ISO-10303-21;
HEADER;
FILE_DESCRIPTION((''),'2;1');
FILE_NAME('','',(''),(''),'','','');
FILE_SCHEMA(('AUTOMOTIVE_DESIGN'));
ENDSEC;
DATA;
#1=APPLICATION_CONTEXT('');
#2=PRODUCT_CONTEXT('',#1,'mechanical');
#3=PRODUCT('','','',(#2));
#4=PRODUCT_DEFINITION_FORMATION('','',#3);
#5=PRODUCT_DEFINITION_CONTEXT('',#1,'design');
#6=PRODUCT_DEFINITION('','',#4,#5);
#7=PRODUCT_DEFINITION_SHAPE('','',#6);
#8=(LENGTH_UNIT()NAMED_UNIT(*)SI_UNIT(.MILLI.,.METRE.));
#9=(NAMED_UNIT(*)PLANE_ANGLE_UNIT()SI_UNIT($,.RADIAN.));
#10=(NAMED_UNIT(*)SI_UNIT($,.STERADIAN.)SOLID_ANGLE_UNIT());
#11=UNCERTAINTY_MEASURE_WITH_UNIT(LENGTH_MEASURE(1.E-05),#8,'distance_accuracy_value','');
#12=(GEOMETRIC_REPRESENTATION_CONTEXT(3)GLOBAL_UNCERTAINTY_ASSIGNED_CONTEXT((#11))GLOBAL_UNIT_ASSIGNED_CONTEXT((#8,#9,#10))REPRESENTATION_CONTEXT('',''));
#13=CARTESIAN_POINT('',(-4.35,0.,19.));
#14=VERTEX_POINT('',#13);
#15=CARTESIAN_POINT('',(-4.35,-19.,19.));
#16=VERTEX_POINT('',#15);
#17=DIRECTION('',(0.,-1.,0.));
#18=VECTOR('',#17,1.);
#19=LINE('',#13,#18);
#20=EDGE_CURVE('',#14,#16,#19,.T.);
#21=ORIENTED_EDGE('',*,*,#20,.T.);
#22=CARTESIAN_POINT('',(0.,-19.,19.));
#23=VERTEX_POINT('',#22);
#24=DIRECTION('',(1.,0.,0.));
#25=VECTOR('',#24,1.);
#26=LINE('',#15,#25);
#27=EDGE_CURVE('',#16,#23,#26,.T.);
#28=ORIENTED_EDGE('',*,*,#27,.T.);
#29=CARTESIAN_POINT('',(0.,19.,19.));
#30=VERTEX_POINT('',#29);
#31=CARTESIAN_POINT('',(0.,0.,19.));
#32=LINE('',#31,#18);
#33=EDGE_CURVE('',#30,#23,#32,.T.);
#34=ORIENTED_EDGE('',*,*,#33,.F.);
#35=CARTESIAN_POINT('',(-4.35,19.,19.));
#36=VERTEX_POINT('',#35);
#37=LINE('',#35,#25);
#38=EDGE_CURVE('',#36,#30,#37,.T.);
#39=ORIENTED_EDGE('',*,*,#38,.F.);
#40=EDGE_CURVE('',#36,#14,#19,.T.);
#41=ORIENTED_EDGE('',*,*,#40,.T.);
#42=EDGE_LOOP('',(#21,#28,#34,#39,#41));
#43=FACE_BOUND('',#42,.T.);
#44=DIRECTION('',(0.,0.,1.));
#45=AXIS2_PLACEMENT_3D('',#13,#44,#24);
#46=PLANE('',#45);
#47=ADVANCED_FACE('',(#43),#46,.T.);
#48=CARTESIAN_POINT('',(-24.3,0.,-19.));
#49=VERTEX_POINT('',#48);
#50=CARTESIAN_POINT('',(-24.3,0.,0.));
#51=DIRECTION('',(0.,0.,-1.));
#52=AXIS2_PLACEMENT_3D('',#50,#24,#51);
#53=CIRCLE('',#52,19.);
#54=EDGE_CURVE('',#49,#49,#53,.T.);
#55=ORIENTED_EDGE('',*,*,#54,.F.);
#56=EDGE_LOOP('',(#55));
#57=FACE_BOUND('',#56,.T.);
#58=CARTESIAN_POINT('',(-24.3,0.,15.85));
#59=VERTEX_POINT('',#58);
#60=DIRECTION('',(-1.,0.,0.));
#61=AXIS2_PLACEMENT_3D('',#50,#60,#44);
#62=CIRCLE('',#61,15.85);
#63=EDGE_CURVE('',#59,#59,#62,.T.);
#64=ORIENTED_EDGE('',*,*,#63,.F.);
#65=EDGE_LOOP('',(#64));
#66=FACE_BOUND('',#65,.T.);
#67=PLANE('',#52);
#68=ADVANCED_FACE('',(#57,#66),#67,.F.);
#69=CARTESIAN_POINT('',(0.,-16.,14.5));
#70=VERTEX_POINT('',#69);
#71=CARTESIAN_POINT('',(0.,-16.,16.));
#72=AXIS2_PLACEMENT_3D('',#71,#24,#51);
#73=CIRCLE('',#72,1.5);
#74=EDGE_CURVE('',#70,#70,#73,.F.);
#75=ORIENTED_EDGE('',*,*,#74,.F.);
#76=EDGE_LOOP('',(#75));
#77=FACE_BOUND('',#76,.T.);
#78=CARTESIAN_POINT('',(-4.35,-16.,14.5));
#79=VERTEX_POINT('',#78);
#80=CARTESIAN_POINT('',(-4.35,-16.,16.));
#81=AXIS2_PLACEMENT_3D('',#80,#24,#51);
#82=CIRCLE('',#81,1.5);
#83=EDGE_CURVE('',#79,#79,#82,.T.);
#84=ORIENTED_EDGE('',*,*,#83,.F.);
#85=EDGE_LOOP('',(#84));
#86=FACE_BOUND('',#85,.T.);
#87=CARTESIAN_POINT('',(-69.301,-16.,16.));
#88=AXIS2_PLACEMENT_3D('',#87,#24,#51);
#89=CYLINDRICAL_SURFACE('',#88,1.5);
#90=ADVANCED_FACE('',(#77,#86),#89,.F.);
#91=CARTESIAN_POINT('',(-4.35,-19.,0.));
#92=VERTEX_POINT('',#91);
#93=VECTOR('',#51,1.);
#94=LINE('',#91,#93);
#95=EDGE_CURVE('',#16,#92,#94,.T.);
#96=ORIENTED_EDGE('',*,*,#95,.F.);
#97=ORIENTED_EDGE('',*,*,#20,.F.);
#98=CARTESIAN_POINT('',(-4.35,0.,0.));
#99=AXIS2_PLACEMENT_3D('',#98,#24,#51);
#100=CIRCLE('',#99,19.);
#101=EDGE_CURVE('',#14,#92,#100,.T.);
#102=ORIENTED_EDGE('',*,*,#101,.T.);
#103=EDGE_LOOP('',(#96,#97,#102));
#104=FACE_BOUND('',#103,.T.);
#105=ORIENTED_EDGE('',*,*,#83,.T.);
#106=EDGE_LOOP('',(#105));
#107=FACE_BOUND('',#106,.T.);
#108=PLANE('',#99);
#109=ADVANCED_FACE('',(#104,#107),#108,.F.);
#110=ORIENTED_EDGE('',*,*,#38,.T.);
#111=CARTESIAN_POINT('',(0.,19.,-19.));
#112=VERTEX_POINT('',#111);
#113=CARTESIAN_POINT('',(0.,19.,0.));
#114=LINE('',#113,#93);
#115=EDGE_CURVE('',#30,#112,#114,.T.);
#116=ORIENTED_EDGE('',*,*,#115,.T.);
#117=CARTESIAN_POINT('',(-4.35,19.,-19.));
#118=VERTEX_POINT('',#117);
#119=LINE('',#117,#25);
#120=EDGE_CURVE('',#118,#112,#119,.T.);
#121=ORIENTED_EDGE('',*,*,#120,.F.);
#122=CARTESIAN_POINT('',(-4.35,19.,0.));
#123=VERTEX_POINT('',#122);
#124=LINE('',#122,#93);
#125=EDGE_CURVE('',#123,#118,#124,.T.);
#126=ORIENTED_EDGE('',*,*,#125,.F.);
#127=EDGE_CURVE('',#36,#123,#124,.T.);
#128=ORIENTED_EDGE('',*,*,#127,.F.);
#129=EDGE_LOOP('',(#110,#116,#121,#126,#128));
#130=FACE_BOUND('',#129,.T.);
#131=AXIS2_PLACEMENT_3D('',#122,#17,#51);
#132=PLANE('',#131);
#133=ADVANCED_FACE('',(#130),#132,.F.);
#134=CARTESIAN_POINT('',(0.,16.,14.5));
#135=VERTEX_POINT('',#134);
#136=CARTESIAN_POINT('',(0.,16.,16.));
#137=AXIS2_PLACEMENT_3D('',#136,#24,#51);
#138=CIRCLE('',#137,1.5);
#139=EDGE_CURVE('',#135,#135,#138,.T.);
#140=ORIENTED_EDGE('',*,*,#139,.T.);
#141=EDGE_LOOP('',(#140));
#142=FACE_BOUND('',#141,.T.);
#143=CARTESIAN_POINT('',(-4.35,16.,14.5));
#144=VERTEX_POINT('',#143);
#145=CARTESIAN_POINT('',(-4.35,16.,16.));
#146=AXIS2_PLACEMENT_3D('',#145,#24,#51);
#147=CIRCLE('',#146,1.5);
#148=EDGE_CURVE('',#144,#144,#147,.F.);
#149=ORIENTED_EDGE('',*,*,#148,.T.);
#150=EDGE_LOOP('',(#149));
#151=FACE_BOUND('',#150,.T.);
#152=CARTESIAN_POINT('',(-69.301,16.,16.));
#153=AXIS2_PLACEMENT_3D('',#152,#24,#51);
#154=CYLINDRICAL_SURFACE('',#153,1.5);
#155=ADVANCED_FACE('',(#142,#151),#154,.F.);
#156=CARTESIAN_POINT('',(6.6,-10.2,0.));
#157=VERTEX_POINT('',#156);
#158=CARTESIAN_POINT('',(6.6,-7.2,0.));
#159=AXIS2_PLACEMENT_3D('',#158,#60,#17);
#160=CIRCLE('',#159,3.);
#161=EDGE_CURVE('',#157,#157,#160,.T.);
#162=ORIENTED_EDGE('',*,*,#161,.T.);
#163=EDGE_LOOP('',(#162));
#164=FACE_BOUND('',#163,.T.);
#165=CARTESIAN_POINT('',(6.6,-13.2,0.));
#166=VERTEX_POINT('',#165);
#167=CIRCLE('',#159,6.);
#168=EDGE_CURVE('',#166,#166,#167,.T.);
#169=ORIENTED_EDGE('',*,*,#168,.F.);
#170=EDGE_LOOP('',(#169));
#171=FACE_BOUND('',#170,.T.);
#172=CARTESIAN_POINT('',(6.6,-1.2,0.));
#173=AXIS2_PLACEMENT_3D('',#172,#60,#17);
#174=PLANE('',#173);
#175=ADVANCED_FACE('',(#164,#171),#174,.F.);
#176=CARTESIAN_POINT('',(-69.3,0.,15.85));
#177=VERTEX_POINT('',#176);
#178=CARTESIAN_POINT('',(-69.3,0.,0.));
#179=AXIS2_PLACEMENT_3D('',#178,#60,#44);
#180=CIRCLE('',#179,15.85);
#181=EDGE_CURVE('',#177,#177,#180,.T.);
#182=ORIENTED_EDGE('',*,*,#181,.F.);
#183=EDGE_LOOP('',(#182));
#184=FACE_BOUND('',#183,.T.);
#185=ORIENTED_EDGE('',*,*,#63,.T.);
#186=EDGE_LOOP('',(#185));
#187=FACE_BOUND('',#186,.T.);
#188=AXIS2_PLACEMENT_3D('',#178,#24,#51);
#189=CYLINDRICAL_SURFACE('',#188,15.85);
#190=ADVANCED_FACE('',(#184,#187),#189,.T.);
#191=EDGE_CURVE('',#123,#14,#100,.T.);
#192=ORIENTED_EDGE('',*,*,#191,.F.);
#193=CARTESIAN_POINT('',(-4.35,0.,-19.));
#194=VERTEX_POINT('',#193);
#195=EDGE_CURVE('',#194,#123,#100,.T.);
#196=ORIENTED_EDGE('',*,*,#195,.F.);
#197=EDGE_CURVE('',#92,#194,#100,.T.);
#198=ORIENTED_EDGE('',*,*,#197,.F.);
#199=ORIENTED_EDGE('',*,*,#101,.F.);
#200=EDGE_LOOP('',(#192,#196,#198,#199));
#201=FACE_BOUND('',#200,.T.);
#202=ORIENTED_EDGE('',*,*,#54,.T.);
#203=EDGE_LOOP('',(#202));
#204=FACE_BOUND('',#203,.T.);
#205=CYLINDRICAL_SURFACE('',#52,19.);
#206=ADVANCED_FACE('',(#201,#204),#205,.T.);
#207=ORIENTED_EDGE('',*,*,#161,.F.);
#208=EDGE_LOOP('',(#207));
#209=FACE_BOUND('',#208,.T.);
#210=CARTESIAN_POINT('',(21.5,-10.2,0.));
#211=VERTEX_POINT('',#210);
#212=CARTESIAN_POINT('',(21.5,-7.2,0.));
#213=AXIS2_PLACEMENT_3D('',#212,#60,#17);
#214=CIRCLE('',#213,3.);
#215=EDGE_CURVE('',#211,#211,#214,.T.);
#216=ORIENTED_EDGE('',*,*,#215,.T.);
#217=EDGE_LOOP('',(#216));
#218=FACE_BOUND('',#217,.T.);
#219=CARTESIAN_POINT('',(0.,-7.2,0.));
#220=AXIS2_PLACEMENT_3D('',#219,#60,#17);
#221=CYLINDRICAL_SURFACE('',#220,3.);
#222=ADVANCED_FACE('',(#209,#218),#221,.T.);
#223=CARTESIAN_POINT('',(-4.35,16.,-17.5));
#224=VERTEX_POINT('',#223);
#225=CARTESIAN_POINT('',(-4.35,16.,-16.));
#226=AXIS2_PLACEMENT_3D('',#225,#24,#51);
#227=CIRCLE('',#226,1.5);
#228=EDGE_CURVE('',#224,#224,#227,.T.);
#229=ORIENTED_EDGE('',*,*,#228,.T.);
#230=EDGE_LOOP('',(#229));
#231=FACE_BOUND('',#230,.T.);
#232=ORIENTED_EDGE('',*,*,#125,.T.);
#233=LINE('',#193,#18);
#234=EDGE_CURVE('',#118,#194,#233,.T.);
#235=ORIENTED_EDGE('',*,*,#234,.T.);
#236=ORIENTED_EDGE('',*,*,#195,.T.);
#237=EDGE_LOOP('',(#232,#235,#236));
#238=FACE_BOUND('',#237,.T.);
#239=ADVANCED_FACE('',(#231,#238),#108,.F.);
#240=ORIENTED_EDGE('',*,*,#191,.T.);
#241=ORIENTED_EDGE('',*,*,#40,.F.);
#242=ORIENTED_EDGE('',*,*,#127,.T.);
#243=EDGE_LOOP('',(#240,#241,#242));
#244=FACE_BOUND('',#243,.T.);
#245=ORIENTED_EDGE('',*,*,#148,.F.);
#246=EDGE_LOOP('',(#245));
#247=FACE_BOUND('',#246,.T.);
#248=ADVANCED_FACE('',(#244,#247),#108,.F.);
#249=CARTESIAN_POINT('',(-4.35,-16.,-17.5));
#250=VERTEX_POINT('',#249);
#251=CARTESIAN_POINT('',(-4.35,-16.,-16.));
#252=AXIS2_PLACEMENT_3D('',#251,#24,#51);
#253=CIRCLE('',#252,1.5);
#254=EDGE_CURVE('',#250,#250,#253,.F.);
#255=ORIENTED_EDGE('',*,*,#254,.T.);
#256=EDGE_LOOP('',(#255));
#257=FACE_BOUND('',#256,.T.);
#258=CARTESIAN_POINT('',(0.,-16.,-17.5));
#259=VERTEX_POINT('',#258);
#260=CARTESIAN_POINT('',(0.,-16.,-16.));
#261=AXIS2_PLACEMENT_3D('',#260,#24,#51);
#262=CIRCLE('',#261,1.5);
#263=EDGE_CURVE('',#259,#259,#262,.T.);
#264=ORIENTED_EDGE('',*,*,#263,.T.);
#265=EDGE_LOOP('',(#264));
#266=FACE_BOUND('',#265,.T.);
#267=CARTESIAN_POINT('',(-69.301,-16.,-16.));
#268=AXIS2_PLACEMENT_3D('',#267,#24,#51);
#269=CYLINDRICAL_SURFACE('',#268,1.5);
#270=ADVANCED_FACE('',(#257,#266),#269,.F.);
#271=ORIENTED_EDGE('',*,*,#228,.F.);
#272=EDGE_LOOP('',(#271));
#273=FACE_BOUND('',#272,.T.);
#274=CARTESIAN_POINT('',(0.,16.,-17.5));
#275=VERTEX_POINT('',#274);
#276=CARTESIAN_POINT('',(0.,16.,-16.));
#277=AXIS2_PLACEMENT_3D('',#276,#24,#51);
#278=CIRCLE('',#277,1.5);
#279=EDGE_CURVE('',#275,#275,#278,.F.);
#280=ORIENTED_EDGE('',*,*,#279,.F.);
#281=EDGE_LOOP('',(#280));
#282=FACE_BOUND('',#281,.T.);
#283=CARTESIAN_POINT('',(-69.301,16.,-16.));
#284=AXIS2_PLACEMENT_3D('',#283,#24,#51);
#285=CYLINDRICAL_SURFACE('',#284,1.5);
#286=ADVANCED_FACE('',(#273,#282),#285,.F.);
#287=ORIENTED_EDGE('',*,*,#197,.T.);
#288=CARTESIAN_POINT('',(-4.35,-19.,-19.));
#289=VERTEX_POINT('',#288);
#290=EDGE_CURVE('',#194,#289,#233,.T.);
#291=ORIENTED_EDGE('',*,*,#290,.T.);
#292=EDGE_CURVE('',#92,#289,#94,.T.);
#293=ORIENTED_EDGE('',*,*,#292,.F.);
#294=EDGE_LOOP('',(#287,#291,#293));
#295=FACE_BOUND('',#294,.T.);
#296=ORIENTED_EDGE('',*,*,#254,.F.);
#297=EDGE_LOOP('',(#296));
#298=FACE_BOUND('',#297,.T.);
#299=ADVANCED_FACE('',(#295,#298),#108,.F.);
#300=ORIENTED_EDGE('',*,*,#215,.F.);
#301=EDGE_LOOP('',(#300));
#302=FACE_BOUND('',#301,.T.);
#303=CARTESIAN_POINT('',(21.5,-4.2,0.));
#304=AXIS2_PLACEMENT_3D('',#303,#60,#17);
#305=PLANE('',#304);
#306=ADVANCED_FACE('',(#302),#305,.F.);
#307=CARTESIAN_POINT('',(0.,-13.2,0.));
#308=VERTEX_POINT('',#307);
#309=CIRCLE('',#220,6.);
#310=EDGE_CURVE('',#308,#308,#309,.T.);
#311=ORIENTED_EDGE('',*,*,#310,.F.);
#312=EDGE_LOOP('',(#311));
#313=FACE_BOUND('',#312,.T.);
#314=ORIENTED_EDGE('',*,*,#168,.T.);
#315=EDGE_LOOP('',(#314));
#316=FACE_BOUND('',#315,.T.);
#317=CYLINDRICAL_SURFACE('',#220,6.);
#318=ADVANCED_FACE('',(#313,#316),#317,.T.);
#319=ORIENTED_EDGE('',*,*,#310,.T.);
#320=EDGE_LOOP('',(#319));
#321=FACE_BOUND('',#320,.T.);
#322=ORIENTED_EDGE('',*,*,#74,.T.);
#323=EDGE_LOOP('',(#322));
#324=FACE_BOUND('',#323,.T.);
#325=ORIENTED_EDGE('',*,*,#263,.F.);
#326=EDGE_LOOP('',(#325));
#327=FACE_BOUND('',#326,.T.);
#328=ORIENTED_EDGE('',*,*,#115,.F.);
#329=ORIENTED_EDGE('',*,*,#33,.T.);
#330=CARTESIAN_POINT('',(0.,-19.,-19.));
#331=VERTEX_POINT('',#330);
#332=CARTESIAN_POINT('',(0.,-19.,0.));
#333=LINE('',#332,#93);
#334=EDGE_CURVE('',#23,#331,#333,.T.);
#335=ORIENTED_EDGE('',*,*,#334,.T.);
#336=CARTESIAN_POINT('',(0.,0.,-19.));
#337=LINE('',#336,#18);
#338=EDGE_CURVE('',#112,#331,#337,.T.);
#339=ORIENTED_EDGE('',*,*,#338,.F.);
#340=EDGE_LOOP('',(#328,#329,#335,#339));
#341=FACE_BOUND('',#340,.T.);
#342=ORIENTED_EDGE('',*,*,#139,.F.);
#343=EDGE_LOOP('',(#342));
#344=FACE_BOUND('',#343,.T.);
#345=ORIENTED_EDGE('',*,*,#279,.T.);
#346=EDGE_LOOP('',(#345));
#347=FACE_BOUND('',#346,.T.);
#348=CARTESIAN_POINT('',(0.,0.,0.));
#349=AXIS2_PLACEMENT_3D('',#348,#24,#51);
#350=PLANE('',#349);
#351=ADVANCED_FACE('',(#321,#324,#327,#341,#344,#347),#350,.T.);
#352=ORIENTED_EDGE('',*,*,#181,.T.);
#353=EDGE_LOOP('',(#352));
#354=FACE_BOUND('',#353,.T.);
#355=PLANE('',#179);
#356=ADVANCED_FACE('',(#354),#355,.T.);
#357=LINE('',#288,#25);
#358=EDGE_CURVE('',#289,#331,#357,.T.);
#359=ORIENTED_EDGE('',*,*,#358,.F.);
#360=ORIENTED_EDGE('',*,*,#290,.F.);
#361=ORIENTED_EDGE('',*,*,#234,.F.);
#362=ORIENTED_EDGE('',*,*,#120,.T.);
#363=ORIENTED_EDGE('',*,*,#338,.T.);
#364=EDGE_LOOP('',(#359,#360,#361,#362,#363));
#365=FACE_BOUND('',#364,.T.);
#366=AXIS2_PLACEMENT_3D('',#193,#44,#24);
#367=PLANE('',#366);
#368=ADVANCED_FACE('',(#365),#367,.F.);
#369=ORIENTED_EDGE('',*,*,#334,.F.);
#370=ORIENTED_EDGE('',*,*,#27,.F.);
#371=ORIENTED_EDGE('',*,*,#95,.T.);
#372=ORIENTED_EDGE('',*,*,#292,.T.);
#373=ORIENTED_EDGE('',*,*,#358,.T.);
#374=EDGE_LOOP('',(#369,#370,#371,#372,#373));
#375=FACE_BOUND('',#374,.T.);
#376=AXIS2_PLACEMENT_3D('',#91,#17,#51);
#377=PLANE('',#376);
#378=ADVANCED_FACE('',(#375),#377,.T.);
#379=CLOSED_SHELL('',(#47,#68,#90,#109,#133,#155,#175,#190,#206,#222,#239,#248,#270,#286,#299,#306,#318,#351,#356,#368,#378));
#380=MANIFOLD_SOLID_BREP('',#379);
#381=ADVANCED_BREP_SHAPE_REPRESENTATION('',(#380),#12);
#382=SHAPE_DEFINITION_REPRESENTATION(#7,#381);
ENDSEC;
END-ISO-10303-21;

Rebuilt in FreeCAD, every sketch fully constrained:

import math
import FreeCAD as App
import Part
import Sketcher

V = App.Vector
Q = App.Units.Quantity

doc = App.newDocument("Part")
body = doc.addObject("PartDesign::Body", "Body")

# Sketch on YZ plane
sketch1 = body.newObject("Sketcher::SketchObject", "Sketch")
sketch1.AttachmentSupport = (doc.getObject("YZ_Plane"), [""])
sketch1.MapMode = "FlatFace"
sketch1.addGeometry(Part.Circle(V(0, 0, 0), V(0, 0, 1), 19), False)
sketch1.addConstraint(Sketcher.Constraint("Coincident", 0, 3, -1, 1))
sketch1.addConstraint(Sketcher.Constraint("Diameter", 0, Q("38 mm")))
pad1 = body.newObject("PartDesign::Pad", "Pad")
pad1.Profile = sketch1
pad1.Length = 24.3
pad1.Reversed = True

# Sketch on YZ plane
sketch2 = body.newObject("Sketcher::SketchObject", "Sketch001")
sketch2.AttachmentSupport = (doc.getObject("YZ_Plane"), [""])
sketch2.MapMode = "FlatFace"
sketch2.addGeometry(Part.LineSegment(V(19, 0, 0), V(19, 19, 0)), False)
sketch2.addGeometry(Part.LineSegment(V(19, 19, 0), V(0, 19, 0)), False)
sketch2.addGeometry(Part.ArcOfCircle(Part.Circle(V(0, 0, 0), V(0, 0, 1), 19), math.radians(0), math.radians(90)), False)
sketch2.addGeometry(Part.LineSegment(V(19, -19, 0), V(19, 0, 0)), False)
sketch2.addGeometry(Part.ArcOfCircle(Part.Circle(V(0, 0, 0), V(0, 0, 1), 19), math.radians(-90), math.radians(0)), False)
sketch2.addGeometry(Part.LineSegment(V(0, -19, 0), V(19, -19, 0)), False)
sketch2.addGeometry(Part.LineSegment(V(-19, -19, 0), V(0, -19, 0)), False)
sketch2.addGeometry(Part.ArcOfCircle(Part.Circle(V(0, 0, 0), V(0, 0, 1), 19), math.radians(-180), math.radians(-90)), False)
sketch2.addGeometry(Part.LineSegment(V(-19, 0, 0), V(-19, -19, 0)), False)
sketch2.addGeometry(Part.ArcOfCircle(Part.Circle(V(0, 0, 0), V(0, 0, 1), 19), math.radians(90), math.radians(180)), False)
sketch2.addGeometry(Part.LineSegment(V(0, 19, 0), V(-19, 19, 0)), False)
sketch2.addGeometry(Part.LineSegment(V(-19, 19, 0), V(-19, 0, 0)), False)
sketch2.addConstraint(Sketcher.Constraint("Coincident", 0, 2, 1, 1))
sketch2.addConstraint(Sketcher.Constraint("Tangent", 1, 2, 2, 2))
sketch2.addConstraint(Sketcher.Constraint("Tangent", 2, 1, 0, 1))
sketch2.addConstraint(Sketcher.Constraint("Tangent", 3, 2, 4, 2))
sketch2.addConstraint(Sketcher.Constraint("Tangent", 4, 1, 5, 1))
sketch2.addConstraint(Sketcher.Constraint("Coincident", 5, 2, 3, 1))
sketch2.addConstraint(Sketcher.Constraint("Tangent", 6, 2, 7, 2))
sketch2.addConstraint(Sketcher.Constraint("Tangent", 7, 1, 8, 1))
sketch2.addConstraint(Sketcher.Constraint("Coincident", 8, 2, 6, 1))
sketch2.addConstraint(Sketcher.Constraint("Tangent", 9, 1, 10, 1))
sketch2.addConstraint(Sketcher.Constraint("Coincident", 10, 2, 11, 1))
sketch2.addConstraint(Sketcher.Constraint("Tangent", 11, 2, 9, 2))
sketch2.addConstraint(Sketcher.Constraint("Vertical", 0))
sketch2.addConstraint(Sketcher.Constraint("Horizontal", 1))
sketch2.addConstraint(Sketcher.Constraint("Vertical", 3))
sketch2.addConstraint(Sketcher.Constraint("Horizontal", 5))
sketch2.addConstraint(Sketcher.Constraint("Horizontal", 6))
sketch2.addConstraint(Sketcher.Constraint("Vertical", 8))
sketch2.addConstraint(Sketcher.Constraint("Horizontal", 10))
sketch2.addConstraint(Sketcher.Constraint("Vertical", 11))
sketch2.addConstraint(Sketcher.Constraint("Coincident", 2, 3, -1, 1))
sketch2.addConstraint(Sketcher.Constraint("Coincident", 4, 3, -1, 1))
sketch2.addConstraint(Sketcher.Constraint("Coincident", 7, 3, -1, 1))
sketch2.addConstraint(Sketcher.Constraint("Coincident", 9, 3, -1, 1))
sketch2.addConstraint(Sketcher.Constraint("Equal", 2, 4))
sketch2.addConstraint(Sketcher.Constraint("Equal", 4, 7))
sketch2.addConstraint(Sketcher.Constraint("Equal", 7, 9))
sketch2.addConstraint(Sketcher.Constraint("Radius", 2, Q("19 mm")))
pad2 = body.newObject("PartDesign::Pad", "Pad001")
pad2.Profile = sketch2
pad2.Length = 4.35
pad2.Reversed = True

# Sketch on YZ plane
sketch3 = body.newObject("Sketcher::SketchObject", "Sketch002")
sketch3.AttachmentSupport = (doc.getObject("YZ_Plane"), [""])
sketch3.MapMode = "FlatFace"
sketch3.AttachmentOffset = App.Placement(V(0, 0, -24.3), App.Rotation())
sketch3.addGeometry(Part.Circle(V(0, 0, 0), V(0, 0, 1), 16), False)
sketch3.addConstraint(Sketcher.Constraint("Coincident", 0, 3, -1, 1))
sketch3.addConstraint(Sketcher.Constraint("Diameter", 0, Q("31.7 mm")))
pad3 = body.newObject("PartDesign::Pad", "Pad002")
pad3.Profile = sketch3
pad3.Length = 45
pad3.Reversed = True

# Sketch on XY plane
sketch4 = body.newObject("Sketcher::SketchObject", "Sketch003")
sketch4.AttachmentSupport = (doc.getObject("XY_Plane"), [""])
sketch4.MapMode = "FlatFace"
sketch4.addGeometry(Part.LineSegment(V(6.6, -1.2, 0), V(0, -1.2, 0)), False)
sketch4.addGeometry(Part.LineSegment(V(0, -1.2, 0), V(0, -7.2, 0)), False)
sketch4.addGeometry(Part.LineSegment(V(0, -7.2, 0), V(21.5, -7.2, 0)), False)
sketch4.addGeometry(Part.LineSegment(V(21.5, -7.2, 0), V(21.5, -4.2, 0)), False)
sketch4.addGeometry(Part.LineSegment(V(21.5, -4.2, 0), V(6.6, -4.2, 0)), False)
sketch4.addGeometry(Part.LineSegment(V(6.6, -4.2, 0), V(6.6, -1.2, 0)), False)
sketch4.addGeometry(Part.LineSegment(V(0, -7.2, 0), V(21.5, -7.2, 0)), True)  # axis
sketch4.addConstraint(Sketcher.Constraint("Coincident", 0, 2, 1, 1))
sketch4.addConstraint(Sketcher.Constraint("Coincident", 1, 2, 2, 1))
sketch4.addConstraint(Sketcher.Constraint("Coincident", 2, 2, 3, 1))
sketch4.addConstraint(Sketcher.Constraint("Coincident", 3, 2, 4, 1))
sketch4.addConstraint(Sketcher.Constraint("Coincident", 4, 2, 5, 1))
sketch4.addConstraint(Sketcher.Constraint("Coincident", 5, 2, 0, 1))
sketch4.addConstraint(Sketcher.Constraint("Horizontal", 0))
sketch4.addConstraint(Sketcher.Constraint("Vertical", 1))
sketch4.addConstraint(Sketcher.Constraint("Horizontal", 2))
sketch4.addConstraint(Sketcher.Constraint("Vertical", 3))
sketch4.addConstraint(Sketcher.Constraint("Horizontal", 4))
sketch4.addConstraint(Sketcher.Constraint("Vertical", 5))
sketch4.addConstraint(Sketcher.Constraint("Horizontal", 6))
sketch4.addConstraint(Sketcher.Constraint("Coincident", 6, 1, 1, 2))
sketch4.addConstraint(Sketcher.Constraint("PointOnObject", 0, 2, -2))
sketch4.addConstraint(Sketcher.Constraint("Vertical", 3, 2, 6, 2))
sketch4.addConstraint(Sketcher.Constraint("Equal", 3, 5))
sketch4.addConstraint(Sketcher.Constraint("DistanceY", 1, 2, 1, 1, Q("6 mm")))
sketch4.addConstraint(Sketcher.Constraint("DistanceX", 0, 2, 0, 1, Q("6.6 mm")))
sketch4.addConstraint(Sketcher.Constraint("DistanceX", 2, 1, 2, 2, Q("21.5 mm")))
sketch4.addConstraint(Sketcher.Constraint("DistanceY", 0, 2, -1, 1, Q("1.2 mm")))
revolution = body.newObject("PartDesign::Revolution", "Revolution")
revolution.Profile = sketch4
revolution.ReferenceAxis = (sketch4, ["Axis0"])
revolution.Angle = 360

# Sketch on YZ plane
sketch5 = body.newObject("Sketcher::SketchObject", "Sketch004")
sketch5.AttachmentSupport = (doc.getObject("YZ_Plane"), [""])
sketch5.MapMode = "FlatFace"
sketch5.addGeometry(Part.Circle(V(16, 16, 0), V(0, 0, 1), 1.5), False)
sketch5.addConstraint(Sketcher.Constraint("Diameter", 0, Q("3 mm")))
sketch5.addConstraint(Sketcher.Constraint("DistanceX", -1, 1, 0, 3, Q("16 mm")))
sketch5.addConstraint(Sketcher.Constraint("DistanceY", -1, 1, 0, 3, Q("16 mm")))
pocket1 = body.newObject("PartDesign::Pocket", "Pocket")
pocket1.Profile = sketch5
pocket1.Type = "UpToFirst"

# Sketch on YZ plane
sketch6 = body.newObject("Sketcher::SketchObject", "Sketch005")
sketch6.AttachmentSupport = (doc.getObject("YZ_Plane"), [""])
sketch6.MapMode = "FlatFace"
sketch6.addGeometry(Part.Circle(V(16, -16, 0), V(0, 0, 1), 1.5), False)
sketch6.addConstraint(Sketcher.Constraint("Diameter", 0, Q("3 mm")))
sketch6.addConstraint(Sketcher.Constraint("DistanceX", -1, 1, 0, 3, Q("16 mm")))
sketch6.addConstraint(Sketcher.Constraint("DistanceY", 0, 3, -1, 1, Q("16 mm")))
pocket2 = body.newObject("PartDesign::Pocket", "Pocket001")
pocket2.Profile = sketch6
pocket2.Type = "UpToFirst"

# Sketch on YZ plane
sketch7 = body.newObject("Sketcher::SketchObject", "Sketch006")
sketch7.AttachmentSupport = (doc.getObject("YZ_Plane"), [""])
sketch7.MapMode = "FlatFace"
sketch7.addGeometry(Part.Circle(V(-16, 16, 0), V(0, 0, 1), 1.5), False)
sketch7.addConstraint(Sketcher.Constraint("Diameter", 0, Q("3 mm")))
sketch7.addConstraint(Sketcher.Constraint("DistanceX", 0, 3, -1, 1, Q("16 mm")))
sketch7.addConstraint(Sketcher.Constraint("DistanceY", -1, 1, 0, 3, Q("16 mm")))
pocket3 = body.newObject("PartDesign::Pocket", "Pocket002")
pocket3.Profile = sketch7
pocket3.Type = "UpToFirst"

# Sketch on YZ plane
sketch8 = body.newObject("Sketcher::SketchObject", "Sketch007")
sketch8.AttachmentSupport = (doc.getObject("YZ_Plane"), [""])
sketch8.MapMode = "FlatFace"
sketch8.addGeometry(Part.Circle(V(-16, -16, 0), V(0, 0, 1), 1.5), False)
sketch8.addConstraint(Sketcher.Constraint("Diameter", 0, Q("3 mm")))
sketch8.addConstraint(Sketcher.Constraint("DistanceX", 0, 3, -1, 1, Q("16 mm")))
sketch8.addConstraint(Sketcher.Constraint("DistanceY", 0, 3, -1, 1, Q("16 mm")))
pocket4 = body.newObject("PartDesign::Pocket", "Pocket003")
pocket4.Profile = sketch8
pocket4.Type = "UpToFirst"

doc.recompute()
